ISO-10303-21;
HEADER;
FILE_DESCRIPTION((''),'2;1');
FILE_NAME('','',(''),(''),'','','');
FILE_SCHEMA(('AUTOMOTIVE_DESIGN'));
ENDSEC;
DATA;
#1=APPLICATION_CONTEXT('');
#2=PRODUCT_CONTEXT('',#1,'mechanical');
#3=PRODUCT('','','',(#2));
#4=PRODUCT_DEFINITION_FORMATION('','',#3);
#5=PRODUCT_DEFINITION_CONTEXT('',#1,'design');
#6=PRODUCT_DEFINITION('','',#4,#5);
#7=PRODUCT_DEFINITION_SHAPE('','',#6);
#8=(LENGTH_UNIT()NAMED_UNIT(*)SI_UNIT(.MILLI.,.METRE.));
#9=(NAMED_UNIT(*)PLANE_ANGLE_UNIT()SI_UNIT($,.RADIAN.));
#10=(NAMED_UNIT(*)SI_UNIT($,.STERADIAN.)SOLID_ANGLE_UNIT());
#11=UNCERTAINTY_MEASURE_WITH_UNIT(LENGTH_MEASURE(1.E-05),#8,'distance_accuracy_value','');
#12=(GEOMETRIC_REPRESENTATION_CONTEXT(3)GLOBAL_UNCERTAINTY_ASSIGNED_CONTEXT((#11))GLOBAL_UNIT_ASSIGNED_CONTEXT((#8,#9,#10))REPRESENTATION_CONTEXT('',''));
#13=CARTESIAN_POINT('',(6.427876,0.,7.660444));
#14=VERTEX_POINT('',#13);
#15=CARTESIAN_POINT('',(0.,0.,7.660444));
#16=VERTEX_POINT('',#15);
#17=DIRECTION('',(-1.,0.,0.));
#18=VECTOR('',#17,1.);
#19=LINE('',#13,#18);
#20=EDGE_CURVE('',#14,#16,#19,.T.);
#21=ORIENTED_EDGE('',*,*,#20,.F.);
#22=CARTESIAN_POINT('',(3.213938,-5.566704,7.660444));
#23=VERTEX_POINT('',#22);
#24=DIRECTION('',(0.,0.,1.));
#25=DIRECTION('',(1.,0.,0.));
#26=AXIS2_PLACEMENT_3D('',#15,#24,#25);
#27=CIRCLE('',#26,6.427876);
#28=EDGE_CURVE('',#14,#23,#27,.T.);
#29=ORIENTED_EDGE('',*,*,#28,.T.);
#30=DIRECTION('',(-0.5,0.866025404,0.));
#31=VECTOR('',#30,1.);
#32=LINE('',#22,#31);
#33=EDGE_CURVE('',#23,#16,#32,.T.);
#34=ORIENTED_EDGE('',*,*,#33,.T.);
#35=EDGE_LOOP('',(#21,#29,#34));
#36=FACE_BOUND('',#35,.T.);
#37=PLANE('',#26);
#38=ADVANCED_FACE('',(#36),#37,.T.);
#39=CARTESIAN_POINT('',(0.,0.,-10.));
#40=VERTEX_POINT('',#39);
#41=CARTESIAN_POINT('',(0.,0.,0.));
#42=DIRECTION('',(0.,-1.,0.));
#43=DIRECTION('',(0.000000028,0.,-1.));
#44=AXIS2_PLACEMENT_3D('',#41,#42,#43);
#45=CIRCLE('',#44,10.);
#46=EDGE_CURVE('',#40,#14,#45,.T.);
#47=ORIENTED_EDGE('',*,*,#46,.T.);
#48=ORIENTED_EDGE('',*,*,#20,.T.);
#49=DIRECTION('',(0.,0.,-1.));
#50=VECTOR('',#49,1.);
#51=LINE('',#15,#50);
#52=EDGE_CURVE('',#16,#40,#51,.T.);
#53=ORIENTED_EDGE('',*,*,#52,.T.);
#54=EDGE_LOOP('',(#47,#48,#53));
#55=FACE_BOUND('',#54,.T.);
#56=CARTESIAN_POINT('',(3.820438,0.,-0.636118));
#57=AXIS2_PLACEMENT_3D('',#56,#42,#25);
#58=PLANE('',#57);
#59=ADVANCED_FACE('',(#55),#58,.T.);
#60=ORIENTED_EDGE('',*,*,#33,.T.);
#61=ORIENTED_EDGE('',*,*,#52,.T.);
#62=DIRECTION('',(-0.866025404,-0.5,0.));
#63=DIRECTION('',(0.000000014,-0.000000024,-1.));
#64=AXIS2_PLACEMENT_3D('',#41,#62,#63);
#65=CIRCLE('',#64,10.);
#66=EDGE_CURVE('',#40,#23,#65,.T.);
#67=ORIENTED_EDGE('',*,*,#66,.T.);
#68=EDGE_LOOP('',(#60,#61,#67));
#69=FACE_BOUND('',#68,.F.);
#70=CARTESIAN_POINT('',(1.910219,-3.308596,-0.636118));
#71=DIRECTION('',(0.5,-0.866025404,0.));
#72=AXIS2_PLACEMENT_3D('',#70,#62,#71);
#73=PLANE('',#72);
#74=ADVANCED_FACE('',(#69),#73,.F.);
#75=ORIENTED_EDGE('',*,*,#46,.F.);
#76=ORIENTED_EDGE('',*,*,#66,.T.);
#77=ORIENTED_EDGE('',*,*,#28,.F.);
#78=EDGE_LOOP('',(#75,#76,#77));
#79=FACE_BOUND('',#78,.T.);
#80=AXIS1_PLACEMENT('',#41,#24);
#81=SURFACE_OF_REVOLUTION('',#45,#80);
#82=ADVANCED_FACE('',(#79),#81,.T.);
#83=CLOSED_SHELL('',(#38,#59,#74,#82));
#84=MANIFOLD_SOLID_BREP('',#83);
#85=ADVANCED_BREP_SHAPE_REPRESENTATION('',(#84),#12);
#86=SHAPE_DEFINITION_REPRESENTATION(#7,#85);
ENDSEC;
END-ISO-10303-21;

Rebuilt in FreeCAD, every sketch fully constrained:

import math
import FreeCAD as App
import Part
import Sketcher
from FreeCAD import Vector

doc = App.newDocument("Part")
body = doc.addObject("PartDesign::Body", "Body")

# Sketch on XZ plane
sketch1 = body.newObject("Sketcher::SketchObject", "Sketch")
sketch1.AttachmentSupport = (doc.getObject("XZ_Plane"), [""])
sketch1.MapMode = "FlatFace"
sketch1.addGeometry(Part.ArcOfCircle(Part.Circle(Vector(0, 0, 0), Vector(0, 0, 1), 10), math.radians(-90), math.radians(50)), False)
sketch1.addGeometry(Part.LineSegment(Vector(6, 8, 0), Vector(0, 8, 0)), False)
sketch1.addGeometry(Part.LineSegment(Vector(0, 8, 0), Vector(0, -10, 0)), False)
sketch1.addConstraint(Sketcher.Constraint("Coincident", 0, 2, 1, 1))
sketch1.addConstraint(Sketcher.Constraint("Coincident", 1, 2, 2, 1))
sketch1.addConstraint(Sketcher.Constraint("Coincident", 2, 2, 0, 1))
sketch1.addConstraint(Sketcher.Constraint("Horizontal", 1))
sketch1.addConstraint(Sketcher.Constraint("Vertical", 2))
sketch1.addConstraint(Sketcher.Constraint("Coincident", 0, 3, -1, 1))
sketch1.addConstraint(Sketcher.Constraint("PointOnObject", 1, 2, -2))
sketch1.addConstraint(Sketcher.Constraint("Radius", 0, 10.0))
sketch1.addConstraint(Sketcher.Constraint("DistanceX", 1, 2, 1, 1, 6.427876))
revolution = body.newObject("PartDesign::Revolution", "Revolution")
revolution.Profile = sketch1
revolution.ReferenceAxis = (sketch1, ["V_Axis"])
revolution.Angle = 300

doc.recompute()
